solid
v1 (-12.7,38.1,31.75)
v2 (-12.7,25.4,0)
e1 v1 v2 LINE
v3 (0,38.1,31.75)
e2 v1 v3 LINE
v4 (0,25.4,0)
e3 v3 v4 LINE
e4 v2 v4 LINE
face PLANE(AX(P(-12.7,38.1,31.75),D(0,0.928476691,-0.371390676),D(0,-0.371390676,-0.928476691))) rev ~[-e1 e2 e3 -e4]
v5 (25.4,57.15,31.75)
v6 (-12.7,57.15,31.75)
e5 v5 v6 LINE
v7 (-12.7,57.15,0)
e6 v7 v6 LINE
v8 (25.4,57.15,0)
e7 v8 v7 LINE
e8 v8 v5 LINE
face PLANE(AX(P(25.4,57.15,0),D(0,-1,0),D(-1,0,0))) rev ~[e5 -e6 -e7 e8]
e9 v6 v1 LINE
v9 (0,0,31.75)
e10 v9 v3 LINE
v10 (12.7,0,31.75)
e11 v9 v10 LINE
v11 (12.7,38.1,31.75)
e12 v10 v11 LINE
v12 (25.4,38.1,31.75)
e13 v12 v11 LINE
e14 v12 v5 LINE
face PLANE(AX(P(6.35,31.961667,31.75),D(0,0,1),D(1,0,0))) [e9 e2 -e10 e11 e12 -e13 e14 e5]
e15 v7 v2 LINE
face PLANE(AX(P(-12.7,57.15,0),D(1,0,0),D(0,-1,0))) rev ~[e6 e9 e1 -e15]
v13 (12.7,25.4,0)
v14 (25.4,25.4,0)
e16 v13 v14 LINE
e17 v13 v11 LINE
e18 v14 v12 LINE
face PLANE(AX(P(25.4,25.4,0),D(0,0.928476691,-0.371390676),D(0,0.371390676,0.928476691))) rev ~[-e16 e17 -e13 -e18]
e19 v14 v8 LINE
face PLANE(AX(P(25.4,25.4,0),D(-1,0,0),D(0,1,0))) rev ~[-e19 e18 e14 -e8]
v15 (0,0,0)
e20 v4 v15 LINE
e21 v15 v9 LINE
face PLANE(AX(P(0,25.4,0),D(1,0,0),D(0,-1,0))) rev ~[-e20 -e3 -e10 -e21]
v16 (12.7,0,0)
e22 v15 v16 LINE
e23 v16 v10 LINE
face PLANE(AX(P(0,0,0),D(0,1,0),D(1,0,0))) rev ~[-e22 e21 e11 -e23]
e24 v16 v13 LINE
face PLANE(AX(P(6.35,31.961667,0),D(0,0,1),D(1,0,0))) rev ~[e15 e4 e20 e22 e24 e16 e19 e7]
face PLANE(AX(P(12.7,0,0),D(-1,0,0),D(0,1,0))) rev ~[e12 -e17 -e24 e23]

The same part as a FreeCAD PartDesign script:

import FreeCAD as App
import Part
import Sketcher

V = App.Vector
Q = App.Units.Quantity

doc = App.newDocument("Part")
body = doc.addObject("PartDesign::Body", "Body")

sketch1 = body.newObject("Sketcher::SketchObject", "Sketch")
sketch1.AttachmentSupport = (doc.getObject("XY_Plane"), [""])
sketch1.MapMode = "FlatFace"
sketch1.addGeometry([
    Part.LineSegment(V(0, 25, 0), V(0, 0, 0)),
    Part.LineSegment(V(0, 0, 0), V(13, 0, 0)),
    Part.LineSegment(V(13, 0, 0), V(13, 25, 0)),
    Part.LineSegment(V(13, 25, 0), V(25, 25, 0)),
    Part.LineSegment(V(25, 25, 0), V(25, 57, 0)),
    Part.LineSegment(V(25, 57, 0), V(-13, 57, 0)),
    Part.LineSegment(V(-13, 57, 0), V(-13, 25, 0)),
    Part.LineSegment(V(-13, 25, 0), V(0, 25, 0)),
], False)
sketch1.addConstraint([
    Sketcher.Constraint("Coincident", 0, 2, 1, 1),
    Sketcher.Constraint("Coincident", 1, 2, 2, 1),
    Sketcher.Constraint("Coincident", 2, 2, 3, 1),
    Sketcher.Constraint("Coincident", 3, 2, 4, 1),
    Sketcher.Constraint("Coincident", 4, 2, 5, 1),
    Sketcher.Constraint("Coincident", 5, 2, 6, 1),
    Sketcher.Constraint("Coincident", 6, 2, 7, 1),
    Sketcher.Constraint("Coincident", 7, 2, 0, 1),
    Sketcher.Constraint("Vertical", 0),
    Sketcher.Constraint("Horizontal", 1),
    Sketcher.Constraint("Vertical", 2),
    Sketcher.Constraint("Horizontal", 3),
    Sketcher.Constraint("Vertical", 4),
    Sketcher.Constraint("Horizontal", 5),
    Sketcher.Constraint("Vertical", 6),
    Sketcher.Constraint("Horizontal", 7),
    Sketcher.Constraint("Coincident", 0, 2, -1, 1),
    Sketcher.Constraint("Symmetric", 2, 2, 6, 2, -2),
    Sketcher.Constraint("Equal", 1, 3),
    Sketcher.Constraint("DistanceY", 0, 2, 0, 1, Q("1 in")),
    Sketcher.Constraint("DistanceX", 1, 1, 1, 2, Q("0.5 in")),
    Sketcher.Constraint("DistanceY", 4, 1, 4, 2, Q("1.25 in")),
])
pad1 = body.newObject("PartDesign::Pad", "Pad")
pad1.Profile = sketch1
pad1.Length = Q("1.25 in")

sketch2 = body.newObject("Sketcher::SketchObject", "Sketch001")
sketch2.AttachmentSupport = (doc.getObject("YZ_Plane"), [""])
sketch2.MapMode = "FlatFace"
sketch2.AttachmentOffset = App.Placement(V(0, 0, -0.5 * 25.4), App.Rotation())
sketch2.addGeometry([
    Part.LineSegment(V(38, 32, 0), V(25, 0, 0)),
    Part.LineSegment(V(25, 0, 0), V(25, 32, 0)),
    Part.LineSegment(V(25, 32, 0), V(38, 32, 0)),
], False)
sketch2.addConstraint([
    Sketcher.Constraint("Coincident", 0, 2, 1, 1),
    Sketcher.Constraint("Coincident", 1, 2, 2, 1),
    Sketcher.Constraint("Coincident", 2, 2, 0, 1),
    Sketcher.Constraint("Vertical", 1),
    Sketcher.Constraint("Horizontal", 2),
    Sketcher.Constraint("PointOnObject", 0, 2, -1),
    Sketcher.Constraint("DistanceX", 2, 1, 2, 2, Q("0.5 in")),
    Sketcher.Constraint("DistanceX", -1, 1, 0, 2, Q("1 in")),
    Sketcher.Constraint("DistanceY", 1, 1, 1, 2, Q("1.25 in")),
])
pocket1 = body.newObject("PartDesign::Pocket", "Pocket")
pocket1.Profile = sketch2
pocket1.Length = Q("0.5 in")
pocket1.Reversed = True

sketch3 = body.newObject("Sketcher::SketchObject", "Sketch002")
sketch3.AttachmentSupport = (doc.getObject("YZ_Plane"), [""])
sketch3.MapMode = "FlatFace"
sketch3.AttachmentOffset = App.Placement(V(0, 0, 1 * 25.4), App.Rotation())
sketch3.addGeometry([
    Part.LineSegment(V(25, 0, 0), V(38, 32, 0)),
    Part.LineSegment(V(38, 32, 0), V(25, 32, 0)),
    Part.LineSegment(V(25, 32, 0), V(25, 0, 0)),
], False)
sketch3.addConstraint([
    Sketcher.Constraint("Coincident", 0, 2, 1, 1),
    Sketcher.Constraint("Coincident", 1, 2, 2, 1),
    Sketcher.Constraint("Coincident", 2, 2, 0, 1),
    Sketcher.Constraint("Horizontal", 1),
    Sketcher.Constraint("Vertical", 2),
    Sketcher.Constraint("PointOnObject", 2, 2, -1),
    Sketcher.Constraint("DistanceX", 1, 2, 1, 1, Q("0.5 in")),
    Sketcher.Constraint("DistanceX", -1, 1, 1, 2, Q("1 in")),
    Sketcher.Constraint("DistanceY", 2, 2, 2, 1, Q("1.25 in")),
])
pocket2 = body.newObject("PartDesign::Pocket", "Pocket001")
pocket2.Profile = sketch3
pocket2.Length = Q("0.5 in")

doc.recompute()
